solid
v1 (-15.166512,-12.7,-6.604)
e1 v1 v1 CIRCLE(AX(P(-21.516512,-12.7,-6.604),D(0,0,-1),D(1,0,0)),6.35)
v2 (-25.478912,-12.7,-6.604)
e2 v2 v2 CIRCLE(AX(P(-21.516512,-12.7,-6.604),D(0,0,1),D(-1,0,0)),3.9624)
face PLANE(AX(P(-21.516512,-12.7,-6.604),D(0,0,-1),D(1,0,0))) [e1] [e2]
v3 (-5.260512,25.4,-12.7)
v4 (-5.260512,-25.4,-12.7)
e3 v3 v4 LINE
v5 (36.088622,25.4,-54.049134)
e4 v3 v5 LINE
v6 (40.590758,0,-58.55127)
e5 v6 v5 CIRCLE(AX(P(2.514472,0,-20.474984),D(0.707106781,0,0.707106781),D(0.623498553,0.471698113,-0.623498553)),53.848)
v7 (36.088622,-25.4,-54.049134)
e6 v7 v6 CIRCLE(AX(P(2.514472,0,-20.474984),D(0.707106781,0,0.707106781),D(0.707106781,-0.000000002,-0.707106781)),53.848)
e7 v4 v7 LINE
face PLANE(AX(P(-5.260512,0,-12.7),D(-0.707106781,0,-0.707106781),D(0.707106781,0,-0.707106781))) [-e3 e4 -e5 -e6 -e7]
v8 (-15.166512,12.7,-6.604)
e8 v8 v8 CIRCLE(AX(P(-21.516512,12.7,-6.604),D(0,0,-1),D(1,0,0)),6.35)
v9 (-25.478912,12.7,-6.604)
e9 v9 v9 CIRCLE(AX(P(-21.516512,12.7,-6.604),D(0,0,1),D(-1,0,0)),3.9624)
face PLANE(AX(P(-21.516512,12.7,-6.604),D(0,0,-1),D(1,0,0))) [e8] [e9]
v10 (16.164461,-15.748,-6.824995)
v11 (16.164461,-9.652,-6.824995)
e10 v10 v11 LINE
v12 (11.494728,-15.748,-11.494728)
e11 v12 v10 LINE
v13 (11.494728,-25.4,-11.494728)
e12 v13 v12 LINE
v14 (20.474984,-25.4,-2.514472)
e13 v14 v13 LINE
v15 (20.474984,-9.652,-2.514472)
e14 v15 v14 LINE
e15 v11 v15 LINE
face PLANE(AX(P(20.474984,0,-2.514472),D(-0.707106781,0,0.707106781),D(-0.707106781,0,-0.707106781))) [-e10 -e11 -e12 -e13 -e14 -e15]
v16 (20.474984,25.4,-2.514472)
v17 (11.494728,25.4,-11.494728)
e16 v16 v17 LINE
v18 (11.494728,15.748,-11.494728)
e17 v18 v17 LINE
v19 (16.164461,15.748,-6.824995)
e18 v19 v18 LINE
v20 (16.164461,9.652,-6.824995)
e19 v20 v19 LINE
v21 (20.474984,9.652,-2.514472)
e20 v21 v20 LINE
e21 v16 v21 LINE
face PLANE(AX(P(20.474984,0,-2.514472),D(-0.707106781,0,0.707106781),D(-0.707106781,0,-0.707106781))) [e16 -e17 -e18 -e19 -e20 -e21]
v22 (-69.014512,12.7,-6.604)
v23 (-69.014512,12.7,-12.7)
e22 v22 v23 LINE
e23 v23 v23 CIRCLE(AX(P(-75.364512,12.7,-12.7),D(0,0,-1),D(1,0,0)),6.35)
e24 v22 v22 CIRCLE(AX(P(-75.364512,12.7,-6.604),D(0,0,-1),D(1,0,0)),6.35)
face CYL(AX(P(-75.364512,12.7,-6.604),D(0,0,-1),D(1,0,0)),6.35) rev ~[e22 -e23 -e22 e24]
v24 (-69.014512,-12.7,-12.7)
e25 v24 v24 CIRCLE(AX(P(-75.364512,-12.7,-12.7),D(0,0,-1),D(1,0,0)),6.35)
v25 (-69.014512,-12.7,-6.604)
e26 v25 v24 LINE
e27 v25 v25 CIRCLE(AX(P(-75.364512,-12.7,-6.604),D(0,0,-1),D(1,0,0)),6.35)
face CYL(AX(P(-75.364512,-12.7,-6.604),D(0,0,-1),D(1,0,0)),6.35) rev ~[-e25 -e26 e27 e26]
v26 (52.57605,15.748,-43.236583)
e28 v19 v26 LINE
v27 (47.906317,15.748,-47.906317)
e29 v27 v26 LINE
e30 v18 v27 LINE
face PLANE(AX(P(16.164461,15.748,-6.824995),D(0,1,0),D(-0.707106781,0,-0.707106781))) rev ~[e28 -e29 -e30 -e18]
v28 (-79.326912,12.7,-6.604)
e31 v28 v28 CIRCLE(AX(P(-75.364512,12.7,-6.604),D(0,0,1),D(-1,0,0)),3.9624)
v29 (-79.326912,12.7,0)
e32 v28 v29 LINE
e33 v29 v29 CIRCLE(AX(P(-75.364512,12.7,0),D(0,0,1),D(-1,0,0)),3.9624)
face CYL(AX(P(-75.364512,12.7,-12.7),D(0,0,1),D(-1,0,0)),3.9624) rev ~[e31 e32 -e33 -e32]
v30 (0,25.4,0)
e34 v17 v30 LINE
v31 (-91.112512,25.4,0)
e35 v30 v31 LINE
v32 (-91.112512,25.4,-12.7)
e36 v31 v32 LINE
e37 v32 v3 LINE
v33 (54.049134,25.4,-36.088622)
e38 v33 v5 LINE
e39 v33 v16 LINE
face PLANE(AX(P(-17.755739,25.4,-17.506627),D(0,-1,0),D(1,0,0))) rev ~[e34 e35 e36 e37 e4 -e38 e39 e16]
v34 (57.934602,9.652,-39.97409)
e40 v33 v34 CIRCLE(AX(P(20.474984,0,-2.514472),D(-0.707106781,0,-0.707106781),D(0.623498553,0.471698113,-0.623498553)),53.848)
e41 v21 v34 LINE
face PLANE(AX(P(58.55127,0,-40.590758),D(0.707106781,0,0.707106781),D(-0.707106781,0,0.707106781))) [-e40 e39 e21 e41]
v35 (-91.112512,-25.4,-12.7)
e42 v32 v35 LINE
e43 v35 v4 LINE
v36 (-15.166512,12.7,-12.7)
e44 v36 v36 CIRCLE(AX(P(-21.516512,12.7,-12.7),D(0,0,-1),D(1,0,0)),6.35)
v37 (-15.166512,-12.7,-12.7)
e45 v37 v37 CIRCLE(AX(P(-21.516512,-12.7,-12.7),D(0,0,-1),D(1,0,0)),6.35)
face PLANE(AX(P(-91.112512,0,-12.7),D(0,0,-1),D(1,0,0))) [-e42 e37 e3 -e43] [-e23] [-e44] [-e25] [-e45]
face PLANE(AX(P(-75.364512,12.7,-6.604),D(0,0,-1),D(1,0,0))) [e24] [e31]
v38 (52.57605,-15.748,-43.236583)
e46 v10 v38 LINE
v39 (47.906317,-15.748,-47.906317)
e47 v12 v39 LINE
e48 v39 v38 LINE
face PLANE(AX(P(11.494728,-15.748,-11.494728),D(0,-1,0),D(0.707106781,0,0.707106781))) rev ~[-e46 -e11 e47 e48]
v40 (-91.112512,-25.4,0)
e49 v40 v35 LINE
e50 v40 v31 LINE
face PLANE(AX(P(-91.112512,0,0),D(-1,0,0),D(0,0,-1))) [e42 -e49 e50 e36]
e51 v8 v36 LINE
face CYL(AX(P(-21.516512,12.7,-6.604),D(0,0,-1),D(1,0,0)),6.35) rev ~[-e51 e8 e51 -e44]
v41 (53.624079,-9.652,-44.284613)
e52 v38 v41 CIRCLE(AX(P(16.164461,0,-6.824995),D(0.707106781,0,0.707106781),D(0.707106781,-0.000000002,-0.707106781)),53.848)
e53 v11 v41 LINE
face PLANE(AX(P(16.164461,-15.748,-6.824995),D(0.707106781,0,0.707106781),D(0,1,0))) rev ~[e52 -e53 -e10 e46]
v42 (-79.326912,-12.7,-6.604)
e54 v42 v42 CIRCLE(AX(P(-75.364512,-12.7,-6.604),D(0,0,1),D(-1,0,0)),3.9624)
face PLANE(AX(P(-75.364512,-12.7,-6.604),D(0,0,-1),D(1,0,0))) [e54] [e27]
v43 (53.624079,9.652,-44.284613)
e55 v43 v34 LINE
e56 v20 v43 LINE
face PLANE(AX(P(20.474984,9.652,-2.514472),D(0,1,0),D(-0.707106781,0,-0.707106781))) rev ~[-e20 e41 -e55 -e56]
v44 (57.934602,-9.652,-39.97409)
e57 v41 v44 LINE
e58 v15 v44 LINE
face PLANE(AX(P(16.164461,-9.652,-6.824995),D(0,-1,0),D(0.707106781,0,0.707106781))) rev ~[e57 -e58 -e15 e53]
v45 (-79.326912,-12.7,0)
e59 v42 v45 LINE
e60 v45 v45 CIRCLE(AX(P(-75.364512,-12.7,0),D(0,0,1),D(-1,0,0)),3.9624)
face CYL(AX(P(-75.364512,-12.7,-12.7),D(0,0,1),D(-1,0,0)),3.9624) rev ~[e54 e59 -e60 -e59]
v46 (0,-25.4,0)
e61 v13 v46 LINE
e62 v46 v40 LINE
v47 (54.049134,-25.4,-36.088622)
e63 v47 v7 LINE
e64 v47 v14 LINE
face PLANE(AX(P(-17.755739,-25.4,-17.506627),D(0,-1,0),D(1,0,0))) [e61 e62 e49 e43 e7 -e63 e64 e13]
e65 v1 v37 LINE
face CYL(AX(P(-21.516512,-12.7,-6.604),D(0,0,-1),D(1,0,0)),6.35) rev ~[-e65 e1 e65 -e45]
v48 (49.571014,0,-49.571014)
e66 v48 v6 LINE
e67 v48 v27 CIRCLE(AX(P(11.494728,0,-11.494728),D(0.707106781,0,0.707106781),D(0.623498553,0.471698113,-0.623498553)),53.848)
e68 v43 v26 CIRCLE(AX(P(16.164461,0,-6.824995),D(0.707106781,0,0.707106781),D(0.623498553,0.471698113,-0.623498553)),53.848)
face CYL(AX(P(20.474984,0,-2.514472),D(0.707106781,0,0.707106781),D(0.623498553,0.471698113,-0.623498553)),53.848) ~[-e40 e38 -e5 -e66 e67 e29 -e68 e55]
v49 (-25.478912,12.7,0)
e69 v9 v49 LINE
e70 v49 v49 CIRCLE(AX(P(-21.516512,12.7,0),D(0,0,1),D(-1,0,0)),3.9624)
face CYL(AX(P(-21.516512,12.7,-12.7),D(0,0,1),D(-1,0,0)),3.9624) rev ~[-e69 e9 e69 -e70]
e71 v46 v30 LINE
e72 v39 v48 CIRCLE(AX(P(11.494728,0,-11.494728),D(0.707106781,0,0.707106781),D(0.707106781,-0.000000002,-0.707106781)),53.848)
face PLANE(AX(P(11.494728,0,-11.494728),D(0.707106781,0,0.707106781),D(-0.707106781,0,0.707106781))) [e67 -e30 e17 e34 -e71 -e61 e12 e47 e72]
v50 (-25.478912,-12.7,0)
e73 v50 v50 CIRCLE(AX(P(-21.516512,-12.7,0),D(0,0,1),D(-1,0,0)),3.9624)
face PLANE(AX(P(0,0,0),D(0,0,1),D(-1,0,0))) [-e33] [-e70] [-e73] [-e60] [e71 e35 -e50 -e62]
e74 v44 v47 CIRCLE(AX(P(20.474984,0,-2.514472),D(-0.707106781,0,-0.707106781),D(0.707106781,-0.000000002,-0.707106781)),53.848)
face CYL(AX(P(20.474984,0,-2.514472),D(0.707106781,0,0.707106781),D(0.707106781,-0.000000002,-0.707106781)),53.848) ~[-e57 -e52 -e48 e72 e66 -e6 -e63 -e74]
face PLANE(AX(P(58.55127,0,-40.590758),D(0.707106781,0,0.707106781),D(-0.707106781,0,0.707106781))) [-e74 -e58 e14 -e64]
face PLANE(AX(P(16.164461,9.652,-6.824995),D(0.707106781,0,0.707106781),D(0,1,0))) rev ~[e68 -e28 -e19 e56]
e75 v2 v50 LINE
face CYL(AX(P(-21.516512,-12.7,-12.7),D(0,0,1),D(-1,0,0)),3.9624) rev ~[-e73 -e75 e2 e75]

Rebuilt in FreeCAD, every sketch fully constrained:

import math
import FreeCAD as App
import Part
import Sketcher
from FreeCAD import Vector
Q = App.Units.Quantity


def add_polygon(sketch, points):
    """Adds a closed chain of lines whose ends are joined by coincident constraints."""
    first, n = sketch.GeometryCount, len(points)
    for a, b in zip(points, points[1:] + points[:1]):
        sketch.addGeometry(Part.LineSegment(App.Vector(*a, 0), App.Vector(*b, 0)), False)
    for i in range(n):
        sketch.addConstraint(Sketcher.Constraint("Coincident", first + i, 2, first + (i + 1) % n, 1))

doc = App.newDocument("Part")
body = doc.addObject("PartDesign::Body", "Body")

# Sketch on XZ plane
sketch1 = doc.addObject("Sketcher::SketchObject", "Sketch")
body.addObject(sketch1)
sketch1.AttachmentSupport = (doc.XZ_Plane, [""])
sketch1.MapMode = "FlatFace"
add_polygon(sketch1, [(-91, 0), (-91, -13), (-5, -13), (41, -59), (59, -41), (20, -3), (11, -11), (0, 0)])  # lines 0-7
sketch1.addConstraint([
    Sketcher.Constraint("Vertical", 0),
    Sketcher.Constraint("Horizontal", 1),
    Sketcher.Constraint("Horizontal", 7),
    Sketcher.Constraint("Coincident", 6, 2, -1, 1),
    Sketcher.Constraint("Perpendicular", 2, 3),
    Sketcher.Constraint("Perpendicular", 3, 4),
    Sketcher.Constraint("Perpendicular", 4, 5),
    Sketcher.Constraint("Perpendicular", 5, 6),
    Sketcher.Constraint("Distance", 3, Q("1 in")),
    Sketcher.Constraint("DistanceY", 0, 2, 0, 1, Q("0.5 in")),
    Sketcher.Constraint("Angle", 2, Q("-45 deg")),
    Sketcher.Constraint("Distance", 5, Q("0.5 in")),
    Sketcher.Constraint("DistanceX", 1, 1, 1, 2, Q("3.38 in")),
    Sketcher.Constraint("Distance", 4, Q("2.12 in")),
    Sketcher.Constraint("Distance", 6, Q("0.64 in")),
])
pad1 = doc.addObject("PartDesign::Pad", "Pad")
body.addObject(pad1)
pad1.Profile = sketch1
pad1.Length = Q("2 in")
pad1.Midplane = True

# Sketch on an angled plane
sketch2 = doc.addObject("Sketcher::SketchObject", "Sketch001")
body.addObject(sketch2)
sketch2.Placement = App.Placement(Vector(8.980256, 0, 8.980256), App.Rotation(Vector(0, 1, 0), Vector(-0.707106781, 0, 0.707106781), Vector(0.707106781, 0, 0.707106781), "ZXY"))
sketch2.addGeometry([
    Part.LineSegment(Vector(0, -70, 0), Vector(25, -70, 0)),  # 0
    Part.LineSegment(Vector(25, -70, 0), Vector(25, -64, 0)),  # 1
    Part.ArcOfCircle(Part.Circle(Vector(0, -16, 0), Vector(0, 0, 1), 54), math.radians(-90), math.radians(-62)),  # 2
    Part.LineSegment(Vector(-25, -70, 0), Vector(0, -70, 0)),  # 3
    Part.ArcOfCircle(Part.Circle(Vector(0, -16, 0), Vector(0, 0, 1), 54), math.radians(-118), math.radians(-90)),  # 4
    Part.LineSegment(Vector(-25, -64, 0), Vector(-25, -70, 0)),  # 5
], False)
sketch2.addConstraint([
    Sketcher.Constraint("Coincident", 0, 2, 1, 1),
    Sketcher.Constraint("Coincident", 1, 2, 2, 2),
    Sketcher.Constraint("Tangent", 2, 1, 0, 1),
    Sketcher.Constraint("Tangent", 3, 2, 4, 2),
    Sketcher.Constraint("Coincident", 4, 1, 5, 1),
    Sketcher.Constraint("Coincident", 5, 2, 3, 1),
    Sketcher.Constraint("Horizontal", 0),
    Sketcher.Constraint("Vertical", 1),
    Sketcher.Constraint("Horizontal", 3),
    Sketcher.Constraint("Vertical", 5),
    Sketcher.Constraint("Coincident", 4, 3, 2, 3),
    Sketcher.Constraint("Equal", 2, 4),
    Sketcher.Constraint("Symmetric", 1, 2, 4, 1, -2),
    Sketcher.Constraint("DistanceX", 0, 1, 0, 2, Q("1 in")),
    Sketcher.Constraint("Radius", 2, Q("2.12 in")),
    Sketcher.Constraint("DistanceY", 2, 3, -1, 1, Q("0.64 in")),
])
pocket1 = doc.addObject("PartDesign::Pocket", "Pocket")
body.addObject(pocket1)
pocket1.Profile = sketch2
pocket1.Type = "ThroughAll"

# Sketch on an angled plane
sketch3 = doc.addObject("Sketcher::SketchObject", "Sketch002")
body.addObject(sketch3)
sketch3.Placement = App.Placement(Vector(11.494728, 0, -11.494728), App.Rotation(Vector(0, -1, 0), Vector(0.707106781, 0, 0.707106781), Vector(-0.707106781, 0, 0.707106781), "ZXY"))
add_polygon(sketch3, [(10, 13), (-10, 13), (-10, 7), (-16, 7), (-16, 0), (16, 0), (16, 7), (10, 7)])  # lines 0-7
sketch3.addConstraint([
    Sketcher.Constraint("Horizontal", 0),
    Sketcher.Constraint("Vertical", 1),
    Sketcher.Constraint("Horizontal", 2),
    Sketcher.Constraint("Vertical", 3),
    Sketcher.Constraint("Horizontal", 4),
    Sketcher.Constraint("Vertical", 5),
    Sketcher.Constraint("Horizontal", 6),
    Sketcher.Constraint("Vertical", 7),
    Sketcher.Constraint("Symmetric", 3, 2, 4, 2, -1, 1),
    Sketcher.Constraint("Symmetric", 1, 2, 6, 2, -2),
    Sketcher.Constraint("Equal", 6, 1),
    Sketcher.Constraint("DistanceX", 1, 2, 4, 2, Q("1 in")),
    Sketcher.Constraint("DistanceX", 0, 2, 0, 1, Q("0.76 in")),
    Sketcher.Constraint("DistanceY", 3, 2, 3, 1, Q("0.26 in")),
])
pocket2 = doc.addObject("PartDesign::Pocket", "Pocket001")
body.addObject(pocket2)
pocket2.Profile = sketch3
pocket2.Type = "ThroughAll"

# Sketch on XY plane
sketch4 = doc.addObject("Sketcher::SketchObject", "Sketch003")
body.addObject(sketch4)
sketch4.AttachmentSupport = (doc.XY_Plane, [""])
sketch4.MapMode = "FlatFace"
sketch4.AttachmentOffset = App.Placement(Vector(0, 0, -0.5 * 25.4), App.Rotation())
sketch4.addGeometry([
    Part.Circle(Vector(-75.4, -12.7, 0), Vector(0, 0, 1), 4),
    Part.Circle(Vector(-21.5, -12.7, 0), Vector(0, 0, 1), 4),
    Part.Circle(Vector(-21.5, 12.7, 0), Vector(0, 0, 1), 4),
    Part.Circle(Vector(-75.4, 12.7, 0), Vector(0, 0, 1), 4),
], False)
sketch4.addConstraint([
    Sketcher.Constraint("Equal", 0, 1),
    Sketcher.Constraint("Equal", 1, 2),
    Sketcher.Constraint("Equal", 2, 3),
    Sketcher.Constraint("Symmetric", 1, 3, 2, 3, -1),
    Sketcher.Constraint("Symmetric", 0, 3, 3, 3, -1),
    Sketcher.Constraint("Horizontal", 0, 3, 1, 3),
    Sketcher.Constraint("Diameter", 0, Q("0.312 in")),
    Sketcher.Constraint("DistanceY", 1, 3, 2, 3, Q("1 in")),
    Sketcher.Constraint("DistanceX", 0, 3, 1, 3, Q("2.12 in")),
    Sketcher.Constraint("DistanceX", 0, 3, -1, 1, 75.364512),
])
doc.recompute()
hole = doc.addObject("PartDesign::Hole", "Hole")
body.addObject(hole)
hole.Profile = sketch4
hole.ThreadType = "None"
hole.Diameter = Q("0.312 in")
hole.DepthType = "ThroughAll"
hole.HoleCutType = "Counterbore"
hole.HoleCutDiameter = Q("0.5 in")
hole.HoleCutDepth = Q("0.24 in")
hole.Reversed = True

doc.recompute()
